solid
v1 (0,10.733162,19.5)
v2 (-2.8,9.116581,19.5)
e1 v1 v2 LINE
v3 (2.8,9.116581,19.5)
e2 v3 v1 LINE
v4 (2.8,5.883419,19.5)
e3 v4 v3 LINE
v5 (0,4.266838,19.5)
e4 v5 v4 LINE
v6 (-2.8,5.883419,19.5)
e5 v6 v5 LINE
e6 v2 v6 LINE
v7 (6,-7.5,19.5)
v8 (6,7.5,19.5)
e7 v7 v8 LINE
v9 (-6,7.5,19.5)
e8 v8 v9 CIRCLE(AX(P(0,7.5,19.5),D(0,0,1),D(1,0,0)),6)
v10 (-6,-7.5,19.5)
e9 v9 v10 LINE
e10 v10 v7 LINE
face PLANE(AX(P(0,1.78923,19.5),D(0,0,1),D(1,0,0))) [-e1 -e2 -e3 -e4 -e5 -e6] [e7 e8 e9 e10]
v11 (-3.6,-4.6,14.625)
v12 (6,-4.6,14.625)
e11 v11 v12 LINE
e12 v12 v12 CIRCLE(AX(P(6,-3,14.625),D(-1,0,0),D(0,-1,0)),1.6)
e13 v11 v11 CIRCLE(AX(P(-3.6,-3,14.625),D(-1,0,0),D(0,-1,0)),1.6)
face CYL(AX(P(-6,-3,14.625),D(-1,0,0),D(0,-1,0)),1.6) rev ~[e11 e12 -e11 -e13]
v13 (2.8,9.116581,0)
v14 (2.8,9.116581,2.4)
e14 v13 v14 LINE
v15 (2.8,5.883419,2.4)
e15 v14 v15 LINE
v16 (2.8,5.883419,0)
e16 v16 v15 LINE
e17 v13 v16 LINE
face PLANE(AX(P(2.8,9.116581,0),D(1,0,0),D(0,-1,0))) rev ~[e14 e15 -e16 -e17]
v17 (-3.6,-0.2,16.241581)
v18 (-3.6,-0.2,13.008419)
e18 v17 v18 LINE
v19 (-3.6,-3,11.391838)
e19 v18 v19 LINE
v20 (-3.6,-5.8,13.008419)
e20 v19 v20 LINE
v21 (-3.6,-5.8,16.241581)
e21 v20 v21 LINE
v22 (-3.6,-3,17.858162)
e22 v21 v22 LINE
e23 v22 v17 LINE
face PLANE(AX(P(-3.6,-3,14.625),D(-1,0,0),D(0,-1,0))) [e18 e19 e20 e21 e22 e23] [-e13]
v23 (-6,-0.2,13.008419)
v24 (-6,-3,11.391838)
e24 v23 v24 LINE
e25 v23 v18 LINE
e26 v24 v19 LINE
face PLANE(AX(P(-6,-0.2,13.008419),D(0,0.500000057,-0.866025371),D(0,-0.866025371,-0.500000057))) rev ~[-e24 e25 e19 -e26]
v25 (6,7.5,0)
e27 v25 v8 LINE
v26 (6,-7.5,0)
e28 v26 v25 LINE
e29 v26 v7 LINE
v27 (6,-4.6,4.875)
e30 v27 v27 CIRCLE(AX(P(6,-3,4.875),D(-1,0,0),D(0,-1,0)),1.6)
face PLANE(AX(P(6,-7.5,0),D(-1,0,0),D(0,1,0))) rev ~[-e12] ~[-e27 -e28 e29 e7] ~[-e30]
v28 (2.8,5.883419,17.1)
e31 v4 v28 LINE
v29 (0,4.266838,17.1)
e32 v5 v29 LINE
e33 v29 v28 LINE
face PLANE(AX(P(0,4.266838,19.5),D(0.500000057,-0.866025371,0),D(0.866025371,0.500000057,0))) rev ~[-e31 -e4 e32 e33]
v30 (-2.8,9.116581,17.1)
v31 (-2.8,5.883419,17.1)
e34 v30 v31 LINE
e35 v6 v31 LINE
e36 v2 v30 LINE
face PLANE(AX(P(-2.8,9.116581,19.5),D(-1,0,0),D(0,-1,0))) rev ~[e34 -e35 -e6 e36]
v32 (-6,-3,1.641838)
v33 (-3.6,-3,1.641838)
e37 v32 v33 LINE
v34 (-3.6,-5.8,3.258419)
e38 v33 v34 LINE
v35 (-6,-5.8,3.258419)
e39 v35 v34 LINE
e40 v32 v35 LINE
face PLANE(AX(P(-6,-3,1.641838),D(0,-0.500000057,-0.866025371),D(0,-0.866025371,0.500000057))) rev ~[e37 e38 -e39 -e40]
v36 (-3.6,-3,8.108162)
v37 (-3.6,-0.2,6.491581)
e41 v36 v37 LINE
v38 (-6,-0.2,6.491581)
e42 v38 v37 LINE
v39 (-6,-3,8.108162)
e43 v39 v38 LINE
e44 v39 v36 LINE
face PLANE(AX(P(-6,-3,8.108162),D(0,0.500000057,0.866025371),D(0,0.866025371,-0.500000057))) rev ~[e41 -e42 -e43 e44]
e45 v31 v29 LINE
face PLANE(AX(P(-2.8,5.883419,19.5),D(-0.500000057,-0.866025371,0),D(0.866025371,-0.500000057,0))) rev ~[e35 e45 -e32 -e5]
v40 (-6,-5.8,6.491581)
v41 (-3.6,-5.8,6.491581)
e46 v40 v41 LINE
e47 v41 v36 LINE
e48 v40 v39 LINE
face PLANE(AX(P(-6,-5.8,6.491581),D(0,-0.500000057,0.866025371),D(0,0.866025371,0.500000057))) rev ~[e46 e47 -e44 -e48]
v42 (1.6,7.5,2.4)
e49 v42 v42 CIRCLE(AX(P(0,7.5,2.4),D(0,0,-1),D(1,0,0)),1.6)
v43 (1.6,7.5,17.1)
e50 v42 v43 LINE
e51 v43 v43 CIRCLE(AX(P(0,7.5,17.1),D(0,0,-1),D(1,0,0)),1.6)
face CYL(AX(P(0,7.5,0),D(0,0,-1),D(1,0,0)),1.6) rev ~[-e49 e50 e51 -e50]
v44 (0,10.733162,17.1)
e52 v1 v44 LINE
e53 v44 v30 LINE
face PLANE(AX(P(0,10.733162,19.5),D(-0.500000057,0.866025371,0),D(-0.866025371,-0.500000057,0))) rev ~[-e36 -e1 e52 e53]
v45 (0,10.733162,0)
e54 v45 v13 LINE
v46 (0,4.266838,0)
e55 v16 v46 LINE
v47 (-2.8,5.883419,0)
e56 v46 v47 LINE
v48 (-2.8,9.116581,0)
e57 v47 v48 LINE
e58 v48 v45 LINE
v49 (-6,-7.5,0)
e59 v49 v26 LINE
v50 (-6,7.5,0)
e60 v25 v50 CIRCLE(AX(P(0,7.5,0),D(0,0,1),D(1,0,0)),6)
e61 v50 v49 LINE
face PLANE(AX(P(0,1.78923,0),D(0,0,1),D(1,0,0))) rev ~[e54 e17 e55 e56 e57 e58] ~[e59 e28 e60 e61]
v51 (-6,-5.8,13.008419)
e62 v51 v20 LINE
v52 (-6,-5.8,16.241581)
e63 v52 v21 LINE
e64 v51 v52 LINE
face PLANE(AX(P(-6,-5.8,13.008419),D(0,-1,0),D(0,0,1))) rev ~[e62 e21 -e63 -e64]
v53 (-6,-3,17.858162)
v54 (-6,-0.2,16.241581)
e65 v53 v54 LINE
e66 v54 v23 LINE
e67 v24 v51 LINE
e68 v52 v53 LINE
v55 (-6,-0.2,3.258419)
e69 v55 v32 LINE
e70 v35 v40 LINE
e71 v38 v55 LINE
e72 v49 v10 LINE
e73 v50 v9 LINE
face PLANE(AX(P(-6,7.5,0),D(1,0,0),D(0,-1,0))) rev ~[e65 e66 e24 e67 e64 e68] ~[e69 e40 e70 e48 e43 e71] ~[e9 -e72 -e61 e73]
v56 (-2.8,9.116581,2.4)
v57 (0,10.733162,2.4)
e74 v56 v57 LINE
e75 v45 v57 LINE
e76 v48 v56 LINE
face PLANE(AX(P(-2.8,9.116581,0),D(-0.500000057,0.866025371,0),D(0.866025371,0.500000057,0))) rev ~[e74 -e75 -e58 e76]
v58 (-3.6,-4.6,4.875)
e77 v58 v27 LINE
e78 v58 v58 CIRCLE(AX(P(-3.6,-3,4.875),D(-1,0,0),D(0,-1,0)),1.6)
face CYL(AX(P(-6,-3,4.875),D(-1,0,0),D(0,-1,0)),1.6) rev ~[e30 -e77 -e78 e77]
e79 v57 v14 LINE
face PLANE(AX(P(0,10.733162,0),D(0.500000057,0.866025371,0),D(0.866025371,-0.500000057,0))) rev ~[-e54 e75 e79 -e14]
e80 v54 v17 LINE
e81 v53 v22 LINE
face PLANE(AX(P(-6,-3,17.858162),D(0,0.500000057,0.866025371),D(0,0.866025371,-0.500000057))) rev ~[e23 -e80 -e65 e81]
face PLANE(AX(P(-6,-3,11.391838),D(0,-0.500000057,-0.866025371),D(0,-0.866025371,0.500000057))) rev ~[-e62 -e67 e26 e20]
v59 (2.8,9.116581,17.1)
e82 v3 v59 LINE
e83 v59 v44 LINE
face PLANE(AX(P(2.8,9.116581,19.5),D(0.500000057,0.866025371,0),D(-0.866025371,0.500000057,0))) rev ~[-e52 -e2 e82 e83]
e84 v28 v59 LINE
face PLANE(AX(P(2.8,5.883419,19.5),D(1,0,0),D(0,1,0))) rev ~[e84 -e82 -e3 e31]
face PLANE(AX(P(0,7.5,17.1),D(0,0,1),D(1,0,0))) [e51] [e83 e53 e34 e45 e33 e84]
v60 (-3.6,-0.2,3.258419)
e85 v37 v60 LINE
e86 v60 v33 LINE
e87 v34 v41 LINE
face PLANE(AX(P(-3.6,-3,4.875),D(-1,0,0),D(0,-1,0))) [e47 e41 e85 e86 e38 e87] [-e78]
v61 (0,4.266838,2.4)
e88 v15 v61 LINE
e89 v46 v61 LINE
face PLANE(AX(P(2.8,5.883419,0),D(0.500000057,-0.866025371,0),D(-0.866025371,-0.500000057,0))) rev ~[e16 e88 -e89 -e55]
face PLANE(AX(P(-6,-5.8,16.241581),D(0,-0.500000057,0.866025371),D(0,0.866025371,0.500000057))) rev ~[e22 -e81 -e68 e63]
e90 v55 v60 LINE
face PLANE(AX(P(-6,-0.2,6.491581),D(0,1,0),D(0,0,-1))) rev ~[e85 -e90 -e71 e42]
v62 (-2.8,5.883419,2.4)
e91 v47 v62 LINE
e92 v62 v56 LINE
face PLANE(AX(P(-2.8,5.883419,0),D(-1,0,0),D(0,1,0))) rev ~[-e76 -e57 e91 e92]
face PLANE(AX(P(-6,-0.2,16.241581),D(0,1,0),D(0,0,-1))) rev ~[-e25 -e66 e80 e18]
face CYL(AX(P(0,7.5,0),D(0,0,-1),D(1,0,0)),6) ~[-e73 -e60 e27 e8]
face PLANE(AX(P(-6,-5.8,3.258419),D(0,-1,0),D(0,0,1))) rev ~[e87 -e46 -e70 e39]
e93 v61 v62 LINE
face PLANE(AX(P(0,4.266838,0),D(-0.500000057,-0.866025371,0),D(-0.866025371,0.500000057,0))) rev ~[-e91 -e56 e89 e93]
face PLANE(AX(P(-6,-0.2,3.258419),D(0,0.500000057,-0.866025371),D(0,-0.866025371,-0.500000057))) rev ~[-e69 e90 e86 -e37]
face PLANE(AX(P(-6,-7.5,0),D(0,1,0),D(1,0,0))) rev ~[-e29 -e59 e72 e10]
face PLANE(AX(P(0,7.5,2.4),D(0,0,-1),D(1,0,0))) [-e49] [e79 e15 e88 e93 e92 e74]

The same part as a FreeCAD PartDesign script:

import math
import FreeCAD as App
import Part
import Sketcher

V = App.Vector
Q = App.Units.Quantity


def add_polygon(sketch, points):
    """Adds a closed chain of lines whose ends are joined by coincident constraints."""
    first, n = sketch.GeometryCount, len(points)
    for a, b in zip(points, points[1:] + points[:1]):
        sketch.addGeometry(Part.LineSegment(App.Vector(*a, 0), App.Vector(*b, 0)), False)
    for i in range(n):
        sketch.addConstraint(Sketcher.Constraint("Coincident", first + i, 2, first + (i + 1) % n, 1))

doc = App.newDocument("Part")
body = doc.addObject("PartDesign::Body", "Body")

sketch1 = body.newObject("Sketcher::SketchObject", "Sketch")
sketch1.AttachmentSupport = (doc.getObject("XY_Plane"), [""])
sketch1.MapMode = "FlatFace"
sketch1.addGeometry([
    Part.ArcOfCircle(Part.Circle(V(0, 8, 0), V(0, 0, 1), 6), math.radians(0), math.radians(180)),
    Part.LineSegment(V(-6, 8, 0), V(-6, -8, 0)),
    Part.LineSegment(V(-6, -8, 0), V(6, -8, 0)),
    Part.LineSegment(V(6, -8, 0), V(6, 8, 0)),
], False)
sketch1.addConstraint([
    Sketcher.Constraint("Tangent", 0, 2, 1, 1),
    Sketcher.Constraint("Coincident", 1, 2, 2, 1),
    Sketcher.Constraint("Coincident", 2, 2, 3, 1),
    Sketcher.Constraint("Tangent", 3, 2, 0, 1),
    Sketcher.Constraint("Vertical", 1),
    Sketcher.Constraint("Horizontal", 2),
    Sketcher.Constraint("Vertical", 3),
    Sketcher.Constraint("Symmetric", 0, 2, 2, 2, -1, 1),
    Sketcher.Constraint("Radius", 0, Q("6 mm")),
    Sketcher.Constraint("DistanceY", 1, 2, 1, 1, Q("15 mm")),
])
pad1 = body.newObject("PartDesign::Pad", "Pad")
pad1.Profile = sketch1
pad1.Length = 19.5

sketch2 = body.newObject("Sketcher::SketchObject", "Sketch001")
sketch2.AttachmentSupport = (doc.getObject("XY_Plane"), [""])
sketch2.MapMode = "FlatFace"
sketch2.addGeometry(Part.Circle(V(0, 7.5, 0), V(0, 0, 1), 1.6), False)
sketch2.addConstraint([
    Sketcher.Constraint("PointOnObject", 0, 3, -2),
    Sketcher.Constraint("Diameter", 0, Q("3.2 mm")),
    Sketcher.Constraint("DistanceY", -1, 1, 0, 3, Q("7.5 mm")),
])
pocket1 = body.newObject("PartDesign::Pocket", "Pocket")
pocket1.Profile = sketch2
pocket1.Type = "ThroughAll"
pocket1.Reversed = True

sketch3 = body.newObject("Sketcher::SketchObject", "Sketch002")
sketch3.AttachmentSupport = (doc.getObject("YZ_Plane"), [""])
sketch3.MapMode = "FlatFace"
sketch3.AttachmentOffset = App.Placement(V(0, 0, -6), App.Rotation())
sketch3.addGeometry([
    Part.Circle(V(-3, 14.6, 0), V(0, 0, 1), 1.6),
    Part.Circle(V(-3, 4.9, 0), V(0, 0, 1), 1.6),
], False)
sketch3.addConstraint([
    Sketcher.Constraint("Equal", 0, 1),
    Sketcher.Constraint("Vertical", 0, 3, 1, 3),
    Sketcher.Constraint("Diameter", 0, Q("3.2 mm")),
    Sketcher.Constraint("DistanceX", 0, 3, -1, 1, Q("3 mm")),
    Sketcher.Constraint("DistanceY", 1, 3, 0, 3, Q("9.75 mm")),
    Sketcher.Constraint("DistanceY", -1, 1, 0, 3, Q("14.625 mm")),
])
pocket2 = body.newObject("PartDesign::Pocket", "Pocket001")
pocket2.Profile = sketch3
pocket2.Type = "ThroughAll"
pocket2.Reversed = True

sketch4 = body.newObject("Sketcher::SketchObject", "Sketch003")
sketch4.AttachmentSupport = (doc.getObject("YZ_Plane"), [""])
sketch4.MapMode = "FlatFace"
sketch4.AttachmentOffset = App.Placement(V(0, 0, -6), App.Rotation())
add_polygon(sketch4, [(-3, 17.9), (-0.2, 16.2), (-0.2, 13), (-3, 11.4), (-5.8, 13), (-5.8, 16.2)])
add_polygon(sketch4, [(-3, 8.1), (-0.2, 6.5), (-0.2, 3.3), (-3, 1.6), (-5.8, 3.3), (-5.8, 6.5)])
sketch4.addConstraint([
    Sketcher.Constraint("Vertical", 1),
    Sketcher.Constraint("Vertical", 4),
    Sketcher.Constraint("Vertical", 7),
    Sketcher.Constraint("Vertical", 10),
    Sketcher.Constraint("Parallel", 0, 3),
    Sketcher.Constraint("Parallel", 2, 5),
    Sketcher.Constraint("Parallel", 3, 6),
    Sketcher.Constraint("Parallel", 5, 8),
    Sketcher.Constraint("Parallel", 6, 9),
    Sketcher.Constraint("Parallel", 8, 11),
    Sketcher.Constraint("Horizontal", 1, 2, 3, 2),
    Sketcher.Constraint("Horizontal", 0, 2, 4, 2),
    Sketcher.Constraint("Horizontal", 7, 2, 9, 2),
    Sketcher.Constraint("Horizontal", 6, 2, 10, 2),
    Sketcher.Constraint("Vertical", 2, 2, 5, 2),
    Sketcher.Constraint("Vertical", 1, 2, 6, 2),
    Sketcher.Constraint("Vertical", 5, 2, 8, 2),
    Sketcher.Constraint("Equal", 4, 7),
    Sketcher.Constraint("Angle", 0, Q("-30.000004 deg")),
    Sketcher.Constraint("DistanceX", 2, 2, -1, 1, Q("3 mm")),
    Sketcher.Constraint("DistanceX", 0, 2, -1, 1, Q("0.2 mm")),
    Sketcher.Constraint("DistanceY", 6, 2, 0, 2, Q("9.75 mm")),
    Sketcher.Constraint("DistanceY", 1, 2, 1, 1, Q("3.233162 mm")),
    Sketcher.Constraint("DistanceY", -1, 1, 0, 2, Q("16.241581 mm")),
])
pocket3 = body.newObject("PartDesign::Pocket", "Pocket002")
pocket3.Profile = sketch4
pocket3.Length = 2.4
pocket3.Reversed = True

sketch5 = body.newObject("Sketcher::SketchObject", "Sketch004")
sketch5.AttachmentSupport = (doc.getObject("XY_Plane"), [""])
sketch5.MapMode = "FlatFace"
add_polygon(sketch5, [(2.8, 9.1), (2.8, 5.9), (0, 4.3), (-2.8, 5.9), (-2.8, 9.1), (0, 10.7)])
sketch5.addConstraint([
    Sketcher.Constraint("Vertical", 0),
    Sketcher.Constraint("Vertical", 3),
    Sketcher.Constraint("Symmetric", 0, 2, 2, 2, -2),
    Sketcher.Constraint("PointOnObject", 1, 2, -2),
    Sketcher.Constraint("PointOnObject", 4, 2, -2),
    Sketcher.Constraint("Parallel", 1, 4),
    Sketcher.Constraint("Parallel", 2, 5),
    Sketcher.Constraint("Angle", 1, Q("-149.999996 deg")),
    Sketcher.Constraint("DistanceX", -1, 1, 0, 2, Q("2.8 mm")),
    Sketcher.Constraint("DistanceY", 0, 2, 0, 1, Q("3.233162 mm")),
    Sketcher.Constraint("DistanceY", -1, 1, 0, 2, Q("5.883419 mm")),
])
pocket4 = body.newObject("PartDesign::Pocket", "Pocket003")
pocket4.Profile = sketch5
pocket4.Length = 2.4
pocket4.Reversed = True

sketch6 = body.newObject("Sketcher::SketchObject", "Sketch005")
sketch6.AttachmentSupport = (doc.getObject("XY_Plane"), [""])
sketch6.MapMode = "FlatFace"
sketch6.AttachmentOffset = App.Placement(V(0, 0, 19.5), App.Rotation())
add_polygon(sketch6, [(2.8, 9.1), (0, 10.7), (-2.8, 9.1), (-2.8, 5.9), (0, 4.3), (2.8, 5.9)])
sketch6.addConstraint([
    Sketcher.Constraint("Vertical", 2),
    Sketcher.Constraint("Vertical", 5),
    Sketcher.Constraint("Symmetric", 2, 2, 4, 2, -2),
    Sketcher.Constraint("PointOnObject", 0, 2, -2),
    Sketcher.Constraint("PointOnObject", 3, 2, -2),
    Sketcher.Constraint("Parallel", 0, 3),
    Sketcher.Constraint("Parallel", 1, 4),
    Sketcher.Constraint("Angle", 0, Q("149.999996 deg")),
    Sketcher.Constraint("DistanceX", 1, 2, -1, 1, Q("2.8 mm")),
    Sketcher.Constraint("DistanceY", 2, 2, 2, 1, Q("3.233162 mm")),
    Sketcher.Constraint("DistanceY", -1, 1, 1, 2, Q("9.116581 mm")),
])
pocket5 = body.newObject("PartDesign::Pocket", "Pocket004")
pocket5.Profile = sketch6
pocket5.Length = 2.4

doc.recompute()
